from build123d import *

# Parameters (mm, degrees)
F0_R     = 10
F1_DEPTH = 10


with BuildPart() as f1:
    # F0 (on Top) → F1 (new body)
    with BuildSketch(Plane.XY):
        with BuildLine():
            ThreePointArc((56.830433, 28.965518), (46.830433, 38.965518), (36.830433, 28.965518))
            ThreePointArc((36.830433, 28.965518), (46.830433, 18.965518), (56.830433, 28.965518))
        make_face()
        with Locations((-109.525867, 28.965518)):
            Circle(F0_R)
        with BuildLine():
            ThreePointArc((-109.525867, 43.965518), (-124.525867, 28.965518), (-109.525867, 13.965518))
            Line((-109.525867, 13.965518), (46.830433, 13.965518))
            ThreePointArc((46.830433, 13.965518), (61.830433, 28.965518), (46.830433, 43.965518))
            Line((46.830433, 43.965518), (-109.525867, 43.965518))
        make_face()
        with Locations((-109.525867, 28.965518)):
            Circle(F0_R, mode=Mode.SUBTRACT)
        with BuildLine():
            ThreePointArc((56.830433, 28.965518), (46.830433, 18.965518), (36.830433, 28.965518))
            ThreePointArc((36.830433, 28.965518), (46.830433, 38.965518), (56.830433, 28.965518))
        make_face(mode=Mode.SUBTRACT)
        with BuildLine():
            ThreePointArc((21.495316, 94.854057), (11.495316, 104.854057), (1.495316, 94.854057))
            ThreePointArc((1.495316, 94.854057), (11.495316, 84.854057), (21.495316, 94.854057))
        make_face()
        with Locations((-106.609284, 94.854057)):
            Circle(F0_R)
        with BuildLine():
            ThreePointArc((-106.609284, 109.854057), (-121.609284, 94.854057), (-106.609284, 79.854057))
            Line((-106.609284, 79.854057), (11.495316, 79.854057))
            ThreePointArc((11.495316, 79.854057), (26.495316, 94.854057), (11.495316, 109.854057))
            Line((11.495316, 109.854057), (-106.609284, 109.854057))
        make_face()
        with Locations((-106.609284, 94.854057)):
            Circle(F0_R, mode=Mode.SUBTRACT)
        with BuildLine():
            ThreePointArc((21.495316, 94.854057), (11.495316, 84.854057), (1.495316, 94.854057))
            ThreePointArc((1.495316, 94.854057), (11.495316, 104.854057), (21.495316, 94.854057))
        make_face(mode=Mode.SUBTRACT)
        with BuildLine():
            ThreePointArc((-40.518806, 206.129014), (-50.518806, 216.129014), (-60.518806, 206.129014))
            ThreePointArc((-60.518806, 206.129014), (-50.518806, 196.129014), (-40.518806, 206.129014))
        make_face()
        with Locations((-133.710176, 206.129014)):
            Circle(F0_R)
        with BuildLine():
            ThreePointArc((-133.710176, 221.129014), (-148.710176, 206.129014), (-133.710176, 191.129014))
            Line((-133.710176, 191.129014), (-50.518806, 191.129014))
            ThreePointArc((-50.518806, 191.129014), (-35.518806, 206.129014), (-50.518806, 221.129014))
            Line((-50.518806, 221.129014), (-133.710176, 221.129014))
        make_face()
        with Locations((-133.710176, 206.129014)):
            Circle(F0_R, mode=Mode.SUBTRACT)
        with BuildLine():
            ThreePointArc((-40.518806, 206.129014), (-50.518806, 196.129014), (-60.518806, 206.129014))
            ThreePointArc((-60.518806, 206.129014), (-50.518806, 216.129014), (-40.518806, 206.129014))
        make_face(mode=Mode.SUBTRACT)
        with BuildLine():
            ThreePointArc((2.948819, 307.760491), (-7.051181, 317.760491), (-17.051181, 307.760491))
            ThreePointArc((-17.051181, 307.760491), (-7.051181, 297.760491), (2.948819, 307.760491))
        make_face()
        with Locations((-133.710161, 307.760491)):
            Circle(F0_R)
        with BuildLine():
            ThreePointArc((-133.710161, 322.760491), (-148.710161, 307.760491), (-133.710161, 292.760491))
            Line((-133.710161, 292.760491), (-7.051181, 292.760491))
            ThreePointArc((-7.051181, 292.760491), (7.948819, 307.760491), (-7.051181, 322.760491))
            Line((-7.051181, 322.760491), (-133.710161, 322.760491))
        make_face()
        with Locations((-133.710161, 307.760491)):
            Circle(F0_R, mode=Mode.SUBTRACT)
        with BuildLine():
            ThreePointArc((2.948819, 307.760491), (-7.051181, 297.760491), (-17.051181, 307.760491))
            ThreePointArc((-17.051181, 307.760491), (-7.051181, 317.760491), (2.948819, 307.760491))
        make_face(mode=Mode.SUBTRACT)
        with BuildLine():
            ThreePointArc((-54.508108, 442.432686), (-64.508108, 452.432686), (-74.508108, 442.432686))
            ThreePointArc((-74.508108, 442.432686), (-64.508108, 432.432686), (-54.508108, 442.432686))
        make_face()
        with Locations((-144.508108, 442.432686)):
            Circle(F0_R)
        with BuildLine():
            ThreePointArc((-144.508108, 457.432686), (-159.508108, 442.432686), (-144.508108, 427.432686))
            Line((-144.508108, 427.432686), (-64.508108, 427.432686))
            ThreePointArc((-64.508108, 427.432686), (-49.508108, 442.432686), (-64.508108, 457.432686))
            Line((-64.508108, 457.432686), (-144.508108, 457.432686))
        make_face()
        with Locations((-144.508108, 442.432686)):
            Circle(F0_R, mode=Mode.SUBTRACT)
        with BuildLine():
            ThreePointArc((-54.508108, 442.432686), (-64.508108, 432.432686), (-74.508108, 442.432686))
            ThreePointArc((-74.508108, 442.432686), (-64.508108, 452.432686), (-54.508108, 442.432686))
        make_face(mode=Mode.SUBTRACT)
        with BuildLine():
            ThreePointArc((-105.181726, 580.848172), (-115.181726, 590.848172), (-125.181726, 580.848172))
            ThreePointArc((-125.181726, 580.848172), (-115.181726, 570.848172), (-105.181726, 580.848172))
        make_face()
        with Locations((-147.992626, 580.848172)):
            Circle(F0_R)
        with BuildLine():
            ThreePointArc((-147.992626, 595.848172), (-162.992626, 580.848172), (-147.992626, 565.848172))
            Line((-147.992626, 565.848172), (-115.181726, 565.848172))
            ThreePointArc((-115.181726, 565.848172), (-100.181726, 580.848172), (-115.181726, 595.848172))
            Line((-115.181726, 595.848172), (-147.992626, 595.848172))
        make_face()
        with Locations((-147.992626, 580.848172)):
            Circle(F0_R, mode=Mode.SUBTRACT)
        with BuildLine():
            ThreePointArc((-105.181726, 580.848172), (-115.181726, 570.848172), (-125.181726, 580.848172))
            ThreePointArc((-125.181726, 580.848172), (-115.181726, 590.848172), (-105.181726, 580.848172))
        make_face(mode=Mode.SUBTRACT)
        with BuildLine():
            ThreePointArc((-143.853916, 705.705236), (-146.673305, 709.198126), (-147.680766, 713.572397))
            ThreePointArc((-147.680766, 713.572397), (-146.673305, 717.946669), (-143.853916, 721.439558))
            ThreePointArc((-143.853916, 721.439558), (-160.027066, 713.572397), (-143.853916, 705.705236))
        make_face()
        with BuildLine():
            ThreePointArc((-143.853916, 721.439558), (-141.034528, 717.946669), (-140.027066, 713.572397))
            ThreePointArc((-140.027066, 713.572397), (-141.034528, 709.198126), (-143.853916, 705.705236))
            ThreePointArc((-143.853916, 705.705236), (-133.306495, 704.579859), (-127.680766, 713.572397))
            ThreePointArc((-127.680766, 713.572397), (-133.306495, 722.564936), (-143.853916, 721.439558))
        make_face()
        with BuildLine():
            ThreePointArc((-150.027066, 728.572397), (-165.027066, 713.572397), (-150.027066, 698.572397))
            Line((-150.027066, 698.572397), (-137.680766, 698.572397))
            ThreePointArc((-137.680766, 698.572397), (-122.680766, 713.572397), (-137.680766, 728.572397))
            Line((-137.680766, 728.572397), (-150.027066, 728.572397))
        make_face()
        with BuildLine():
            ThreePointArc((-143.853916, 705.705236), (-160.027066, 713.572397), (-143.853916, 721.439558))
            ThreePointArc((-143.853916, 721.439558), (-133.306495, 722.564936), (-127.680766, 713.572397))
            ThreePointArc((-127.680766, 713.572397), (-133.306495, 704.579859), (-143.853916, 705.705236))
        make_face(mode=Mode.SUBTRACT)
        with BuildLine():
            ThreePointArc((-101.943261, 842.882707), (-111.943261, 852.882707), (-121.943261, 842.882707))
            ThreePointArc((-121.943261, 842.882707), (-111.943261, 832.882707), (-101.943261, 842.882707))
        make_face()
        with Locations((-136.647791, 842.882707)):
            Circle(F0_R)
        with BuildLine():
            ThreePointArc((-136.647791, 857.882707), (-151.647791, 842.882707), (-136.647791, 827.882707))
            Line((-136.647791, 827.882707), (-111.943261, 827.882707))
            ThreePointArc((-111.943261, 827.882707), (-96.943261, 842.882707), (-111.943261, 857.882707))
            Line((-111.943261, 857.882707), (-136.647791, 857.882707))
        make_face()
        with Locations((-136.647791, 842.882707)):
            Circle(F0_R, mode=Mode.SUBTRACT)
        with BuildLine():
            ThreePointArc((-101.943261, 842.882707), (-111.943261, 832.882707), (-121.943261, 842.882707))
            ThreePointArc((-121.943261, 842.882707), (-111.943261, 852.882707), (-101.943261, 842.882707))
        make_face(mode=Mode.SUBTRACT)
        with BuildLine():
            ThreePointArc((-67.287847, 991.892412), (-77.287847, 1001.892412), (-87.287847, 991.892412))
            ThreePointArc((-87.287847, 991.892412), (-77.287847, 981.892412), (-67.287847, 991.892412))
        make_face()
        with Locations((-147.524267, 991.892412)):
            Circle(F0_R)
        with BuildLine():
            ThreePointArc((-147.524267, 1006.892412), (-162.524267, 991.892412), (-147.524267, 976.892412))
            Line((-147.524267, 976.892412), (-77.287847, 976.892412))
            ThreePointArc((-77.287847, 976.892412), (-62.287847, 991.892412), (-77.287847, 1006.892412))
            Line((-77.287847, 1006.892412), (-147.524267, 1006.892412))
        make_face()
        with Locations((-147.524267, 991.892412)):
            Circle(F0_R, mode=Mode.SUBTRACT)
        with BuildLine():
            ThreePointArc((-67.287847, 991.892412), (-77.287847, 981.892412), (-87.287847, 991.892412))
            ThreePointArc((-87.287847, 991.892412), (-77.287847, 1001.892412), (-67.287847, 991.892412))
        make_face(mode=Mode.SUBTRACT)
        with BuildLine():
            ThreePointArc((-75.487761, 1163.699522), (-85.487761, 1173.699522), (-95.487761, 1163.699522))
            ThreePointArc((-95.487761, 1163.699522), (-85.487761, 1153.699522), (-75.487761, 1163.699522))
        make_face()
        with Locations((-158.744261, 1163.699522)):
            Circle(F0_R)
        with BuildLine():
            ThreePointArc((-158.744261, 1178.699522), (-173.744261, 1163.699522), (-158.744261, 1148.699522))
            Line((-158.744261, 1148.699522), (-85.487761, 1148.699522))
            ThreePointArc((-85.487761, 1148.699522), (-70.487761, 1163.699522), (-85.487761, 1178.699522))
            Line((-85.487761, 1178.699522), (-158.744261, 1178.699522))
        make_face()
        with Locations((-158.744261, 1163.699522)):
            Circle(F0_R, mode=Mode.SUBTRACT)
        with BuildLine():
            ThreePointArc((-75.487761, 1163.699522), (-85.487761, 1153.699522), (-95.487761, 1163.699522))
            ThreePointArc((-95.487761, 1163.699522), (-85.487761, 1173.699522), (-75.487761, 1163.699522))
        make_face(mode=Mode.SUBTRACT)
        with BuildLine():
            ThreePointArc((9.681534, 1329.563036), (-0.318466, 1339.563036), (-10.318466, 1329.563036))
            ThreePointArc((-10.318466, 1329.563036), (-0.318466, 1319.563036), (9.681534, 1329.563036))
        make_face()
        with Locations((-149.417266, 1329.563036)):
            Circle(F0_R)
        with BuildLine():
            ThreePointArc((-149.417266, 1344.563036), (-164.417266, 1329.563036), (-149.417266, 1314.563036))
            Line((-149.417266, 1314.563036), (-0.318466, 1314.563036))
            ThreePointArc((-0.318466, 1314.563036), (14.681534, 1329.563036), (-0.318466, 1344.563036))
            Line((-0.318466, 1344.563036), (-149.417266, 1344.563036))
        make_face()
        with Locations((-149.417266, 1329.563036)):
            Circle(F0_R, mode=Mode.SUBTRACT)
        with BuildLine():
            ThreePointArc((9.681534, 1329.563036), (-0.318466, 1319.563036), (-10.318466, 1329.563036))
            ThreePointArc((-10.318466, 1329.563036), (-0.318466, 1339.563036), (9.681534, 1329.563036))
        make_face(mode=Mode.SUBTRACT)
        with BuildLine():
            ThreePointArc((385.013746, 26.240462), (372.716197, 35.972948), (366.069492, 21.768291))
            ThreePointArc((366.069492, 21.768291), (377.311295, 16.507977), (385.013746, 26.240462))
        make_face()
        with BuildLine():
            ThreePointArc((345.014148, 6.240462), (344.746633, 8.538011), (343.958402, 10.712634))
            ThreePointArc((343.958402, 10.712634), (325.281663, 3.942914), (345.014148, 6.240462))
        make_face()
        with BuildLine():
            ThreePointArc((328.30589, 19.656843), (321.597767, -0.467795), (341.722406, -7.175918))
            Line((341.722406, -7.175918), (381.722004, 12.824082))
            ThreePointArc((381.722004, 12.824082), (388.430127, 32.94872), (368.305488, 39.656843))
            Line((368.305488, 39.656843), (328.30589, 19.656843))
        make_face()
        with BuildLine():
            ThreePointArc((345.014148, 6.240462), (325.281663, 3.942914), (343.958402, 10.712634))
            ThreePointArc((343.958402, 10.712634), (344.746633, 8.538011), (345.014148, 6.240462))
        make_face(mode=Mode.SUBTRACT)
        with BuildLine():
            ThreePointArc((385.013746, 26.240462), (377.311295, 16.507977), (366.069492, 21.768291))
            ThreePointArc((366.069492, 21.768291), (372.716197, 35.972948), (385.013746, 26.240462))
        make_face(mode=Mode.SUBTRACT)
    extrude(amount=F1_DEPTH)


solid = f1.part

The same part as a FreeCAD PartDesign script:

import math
import FreeCAD as App
import Part
import Sketcher

V = App.Vector
Q = App.Units.Quantity

doc = App.newDocument("Part")
body = doc.addObject("PartDesign::Body", "Body")
body.AllowCompound = True

# Sketch on XY plane
sketch1 = doc.addObject("Sketcher::SketchObject", "Sketch")
body.addObject(sketch1)
sketch1.AttachmentSupport = (doc.XY_Plane, [""])
sketch1.MapMode = "FlatFace"
sketch1.addGeometry([
    Part.ArcOfCircle(Part.Circle(V(-109.525867, 28.965518, 0), V(0, 0, 1), 15), math.radians(90), math.radians(270)),  # 0
    Part.LineSegment(V(-109.525867, 13.965518, 0), V(46.830433, 13.965518, 0)),  # 1
    Part.ArcOfCircle(Part.Circle(V(46.830433, 28.965518, 0), V(0, 0, 1), 15), math.radians(-90), math.radians(90)),  # 2
    Part.LineSegment(V(46.830433, 43.965518, 0), V(-109.525867, 43.965518, 0)),  # 3
    Part.Circle(V(-109.525867, 28.965518, 0), V(0, 0, 1), 10),  # 4
    Part.Circle(V(46.830433, 28.965518, 0), V(0, 0, 1), 10),  # 5
    Part.ArcOfCircle(Part.Circle(V(-106.609284, 94.854057, 0), V(0, 0, 1), 15), math.radians(90), math.radians(270)),  # 6
    Part.LineSegment(V(-106.609284, 79.854057, 0), V(11.495316, 79.854057, 0)),  # 7
    Part.ArcOfCircle(Part.Circle(V(11.495316, 94.854057, 0), V(0, 0, 1), 15), math.radians(-90), math.radians(90)),  # 8
    Part.LineSegment(V(11.495316, 109.854057, 0), V(-106.609284, 109.854057, 0)),  # 9
    Part.Circle(V(-106.609284, 94.854057, 0), V(0, 0, 1), 10),  # 10
    Part.Circle(V(11.495316, 94.854057, 0), V(0, 0, 1), 10),  # 11
    Part.ArcOfCircle(Part.Circle(V(-133.710176, 206.129014, 0), V(0, 0, 1), 15), math.radians(90), math.radians(270)),  # 12
    Part.LineSegment(V(-133.710176, 191.129014, 0), V(-50.518806, 191.129014, 0)),  # 13
    Part.ArcOfCircle(Part.Circle(V(-50.518806, 206.129014, 0), V(0, 0, 1), 15), math.radians(-90), math.radians(90)),  # 14
    Part.LineSegment(V(-50.518806, 221.129014, 0), V(-133.710176, 221.129014, 0)),  # 15
    Part.Circle(V(-133.710176, 206.129014, 0), V(0, 0, 1), 10),  # 16
    Part.Circle(V(-50.518806, 206.129014, 0), V(0, 0, 1), 10),  # 17
    Part.ArcOfCircle(Part.Circle(V(-133.710161, 307.760491, 0), V(0, 0, 1), 15), math.radians(90), math.radians(270)),  # 18
    Part.LineSegment(V(-133.710161, 292.760491, 0), V(-7.051181, 292.760491, 0)),  # 19
    Part.ArcOfCircle(Part.Circle(V(-7.051181, 307.760491, 0), V(0, 0, 1), 15), math.radians(-90), math.radians(90)),  # 20
    Part.LineSegment(V(-7.051181, 322.760491, 0), V(-133.710161, 322.760491, 0)),  # 21
    Part.Circle(V(-133.710161, 307.760491, 0), V(0, 0, 1), 10),  # 22
    Part.Circle(V(-7.051181, 307.760491, 0), V(0, 0, 1), 10),  # 23
    Part.ArcOfCircle(Part.Circle(V(-144.508108, 442.432686, 0), V(0, 0, 1), 15), math.radians(90), math.radians(270)),  # 24
    Part.LineSegment(V(-144.508108, 427.432686, 0), V(-64.508108, 427.432686, 0)),  # 25
    Part.ArcOfCircle(Part.Circle(V(-64.508108, 442.432686, 0), V(0, 0, 1), 15), math.radians(-90), math.radians(90)),  # 26
    Part.LineSegment(V(-64.508108, 457.432686, 0), V(-144.508108, 457.432686, 0)),  # 27
    Part.Circle(V(-144.508108, 442.432686, 0), V(0, 0, 1), 10),  # 28
    Part.Circle(V(-64.508108, 442.432686, 0), V(0, 0, 1), 10),  # 29
    Part.ArcOfCircle(Part.Circle(V(-147.992626, 580.848172, 0), V(0, 0, 1), 15), math.radians(90), math.radians(270)),  # 30
    Part.LineSegment(V(-147.992626, 565.848172, 0), V(-115.181726, 565.848172, 0)),  # 31
    Part.ArcOfCircle(Part.Circle(V(-115.181726, 580.848172, 0), V(0, 0, 1), 15), math.radians(-90), math.radians(90)),  # 32
    Part.LineSegment(V(-115.181726, 595.848172, 0), V(-147.992626, 595.848172, 0)),  # 33
    Part.Circle(V(-147.992626, 580.848172, 0), V(0, 0, 1), 10),  # 34
    Part.Circle(V(-115.181726, 580.848172, 0), V(0, 0, 1), 10),  # 35
    Part.ArcOfCircle(Part.Circle(V(-150.027066, 713.572397, 0), V(0, 0, 1), 15), math.radians(90), math.radians(270)),  # 36
    Part.LineSegment(V(-150.027066, 698.572397, 0), V(-137.680766, 698.572397, 0)),  # 37
    Part.ArcOfCircle(Part.Circle(V(-137.680766, 713.572397, 0), V(0, 0, 1), 15), math.radians(-90), math.radians(90)),  # 38
    Part.LineSegment(V(-137.680766, 728.572397, 0), V(-150.027066, 728.572397, 0)),  # 39
    Part.ArcOfCircle(Part.Circle(V(-137.680767, 713.572398, 0), V(0, 0, 1), 10.000001), math.radians(-128.120318), math.radians(-0.000007)),  # 40
    Part.ArcOfCircle(Part.Circle(V(-150.027066, 713.572397, 0), V(0, 0, 1), 10), math.radians(51.879676), math.radians(308.120324)),  # 41
    Part.ArcOfCircle(Part.Circle(V(-137.680766, 713.572397, 0), V(0, 0, 1), 10), math.radians(-0.000002), math.radians(128.120326)),  # 42
    Part.ArcOfCircle(Part.Circle(V(-136.647791, 842.882707, 0), V(0, 0, 1), 15), math.radians(90), math.radians(270)),  # 43
    Part.LineSegment(V(-136.647791, 827.882707, 0), V(-111.943261, 827.882707, 0)),  # 44
    Part.ArcOfCircle(Part.Circle(V(-111.943261, 842.882707, 0), V(0, 0, 1), 15), math.radians(-90), math.radians(90)),  # 45
    Part.LineSegment(V(-111.943261, 857.882707, 0), V(-136.647791, 857.882707, 0)),  # 46
    Part.Circle(V(-136.647791, 842.882707, 0), V(0, 0, 1), 10),  # 47
    Part.Circle(V(-111.943261, 842.882707, 0), V(0, 0, 1), 10),  # 48
    Part.ArcOfCircle(Part.Circle(V(-147.524267, 991.892412, 0), V(0, 0, 1), 15), math.radians(90), math.radians(270)),  # 49
    Part.LineSegment(V(-147.524267, 976.892412, 0), V(-77.287847, 976.892412, 0)),  # 50
    Part.ArcOfCircle(Part.Circle(V(-77.287847, 991.892412, 0), V(0, 0, 1), 15), math.radians(-90), math.radians(90)),  # 51
    Part.LineSegment(V(-77.287847, 1006.892412, 0), V(-147.524267, 1006.892412, 0)),  # 52
    Part.Circle(V(-147.524267, 991.892412, 0), V(0, 0, 1), 10),  # 53
    Part.Circle(V(-77.287847, 991.892412, 0), V(0, 0, 1), 10),  # 54
    Part.ArcOfCircle(Part.Circle(V(-158.744261, 1163.699522, 0), V(0, 0, 1), 15), math.radians(90), math.radians(270)),  # 55
    Part.LineSegment(V(-158.744261, 1148.699522, 0), V(-85.487761, 1148.699522, 0)),  # 56
    Part.ArcOfCircle(Part.Circle(V(-85.487761, 1163.699522, 0), V(0, 0, 1), 15), math.radians(-90), math.radians(90)),  # 57
    Part.LineSegment(V(-85.487761, 1178.699522, 0), V(-158.744261, 1178.699522, 0)),  # 58
    Part.Circle(V(-158.744261, 1163.699522, 0), V(0, 0, 1), 10),  # 59
    Part.Circle(V(-85.487761, 1163.699522, 0), V(0, 0, 1), 10),  # 60
    Part.ArcOfCircle(Part.Circle(V(-149.417266, 1329.563036, 0), V(0, 0, 1), 15), math.radians(90), math.radians(270)),  # 61
    Part.LineSegment(V(-149.417266, 1314.563036, 0), V(-0.318466, 1314.563036, 0)),  # 62
    Part.ArcOfCircle(Part.Circle(V(-0.318466, 1329.563036, 0), V(0, 0, 1), 15), math.radians(-90), math.radians(90)),  # 63
    Part.LineSegment(V(-0.318466, 1344.563036, 0), V(-149.417266, 1344.563036, 0)),  # 64
    Part.Circle(V(-149.417266, 1329.563036, 0), V(0, 0, 1), 10),  # 65
    Part.Circle(V(-0.318466, 1329.563036, 0), V(0, 0, 1), 10),  # 66
    Part.ArcOfCircle(Part.Circle(V(335.014148, 6.240462, 0), V(0, 0, 1), 15), math.radians(116.565282), math.radians(296.565283)),  # 67
    Part.LineSegment(V(341.722406, -7.175918, 0), V(381.722004, 12.824082, 0)),  # 68
    Part.ArcOfCircle(Part.Circle(V(375.013746, 26.240463, 0), V(0, 0, 1), 15), math.radians(-63.434718), math.radians(116.565283)),  # 69
    Part.LineSegment(V(368.305488, 39.656843, 0), V(328.30589, 19.656843, 0)),  # 70
    Part.ArcOfCircle(Part.Circle(V(335.014138, 6.24046, 0), V(0, 0, 1), 10.00001), math.radians(0.000012), math.radians(26.565267)),  # 71
    Part.ArcOfCircle(Part.Circle(V(335.014148, 6.240462, 0), V(0, 0, 1), 10), math.radians(26.565281), math.radians(359.999998)),  # 72
    Part.ArcOfCircle(Part.Circle(V(375.013746, 26.240463, 0), V(0, 0, 1), 10), math.radians(-0.000004), math.radians(206.565281)),  # 73
    Part.ArcOfCircle(Part.Circle(V(375.013746, 26.240462, 0), V(0, 0, 1), 10), math.radians(-153.434723), math.radians(-0.000001)),  # 74
], False)
sketch1.addConstraint([
    Sketcher.Constraint("Coincident", 0, 2, 1, 1),
    Sketcher.Constraint("Coincident", 1, 2, 2, 1),
    Sketcher.Constraint("Coincident", 2, 2, 3, 1),
    Sketcher.Constraint("Coincident", 3, 2, 0, 1),
    Sketcher.Constraint("Coincident", 6, 2, 7, 1),
    Sketcher.Constraint("Coincident", 7, 2, 8, 1),
    Sketcher.Constraint("Coincident", 8, 2, 9, 1),
    Sketcher.Constraint("Coincident", 9, 2, 6, 1),
    Sketcher.Constraint("Coincident", 12, 2, 13, 1),
    Sketcher.Constraint("Coincident", 13, 2, 14, 1),
    Sketcher.Constraint("Coincident", 14, 2, 15, 1),
    Sketcher.Constraint("Coincident", 15, 2, 12, 1),
    Sketcher.Constraint("Coincident", 18, 2, 19, 1),
    Sketcher.Constraint("Coincident", 19, 2, 20, 1),
    Sketcher.Constraint("Coincident", 20, 2, 21, 1),
    Sketcher.Constraint("Coincident", 21, 2, 18, 1),
    Sketcher.Constraint("Coincident", 24, 2, 25, 1),
    Sketcher.Constraint("Coincident", 25, 2, 26, 1),
    Sketcher.Constraint("Coincident", 26, 2, 27, 1),
    Sketcher.Constraint("Coincident", 27, 2, 24, 1),
    Sketcher.Constraint("Coincident", 30, 2, 31, 1),
    Sketcher.Constraint("Coincident", 31, 2, 32, 1),
    Sketcher.Constraint("Coincident", 32, 2, 33, 1),
    Sketcher.Constraint("Coincident", 33, 2, 30, 1),
    Sketcher.Constraint("Coincident", 36, 2, 37, 1),
    Sketcher.Constraint("Coincident", 37, 2, 38, 1),
    Sketcher.Constraint("Coincident", 38, 2, 39, 1),
    Sketcher.Constraint("Coincident", 39, 2, 36, 1),
    Sketcher.Constraint("Coincident", 40, 1, 41, 2),
    Sketcher.Constraint("Coincident", 41, 1, 42, 2),
    Sketcher.Constraint("Coincident", 42, 1, 40, 2),
    Sketcher.Constraint("Coincident", 43, 2, 44, 1),
    Sketcher.Constraint("Coincident", 44, 2, 45, 1),
    Sketcher.Constraint("Coincident", 45, 2, 46, 1),
    Sketcher.Constraint("Coincident", 46, 2, 43, 1),
    Sketcher.Constraint("Coincident", 49, 2, 50, 1),
    Sketcher.Constraint("Coincident", 50, 2, 51, 1),
    Sketcher.Constraint("Coincident", 51, 2, 52, 1),
    Sketcher.Constraint("Coincident", 52, 2, 49, 1),
    Sketcher.Constraint("Coincident", 55, 2, 56, 1),
    Sketcher.Constraint("Coincident", 56, 2, 57, 1),
    Sketcher.Constraint("Coincident", 57, 2, 58, 1),
    Sketcher.Constraint("Coincident", 58, 2, 55, 1),
    Sketcher.Constraint("Coincident", 61, 2, 62, 1),
    Sketcher.Constraint("Coincident", 62, 2, 63, 1),
    Sketcher.Constraint("Coincident", 63, 2, 64, 1),
    Sketcher.Constraint("Coincident", 64, 2, 61, 1),
    Sketcher.Constraint("Coincident", 67, 2, 68, 1),
    Sketcher.Constraint("Coincident", 68, 2, 69, 1),
    Sketcher.Constraint("Coincident", 69, 2, 70, 1),
    Sketcher.Constraint("Coincident", 70, 2, 67, 1),
    Sketcher.Constraint("Coincident", 71, 1, 72, 2),
    Sketcher.Constraint("Coincident", 72, 1, 71, 2),
    Sketcher.Constraint("Coincident", 73, 1, 74, 2),
    Sketcher.Constraint("Coincident", 74, 1, 73, 2),
    Sketcher.Constraint("Horizontal", 1),
    Sketcher.Constraint("Horizontal", 3),
    Sketcher.Constraint("Horizontal", 7),
    Sketcher.Constraint("Horizontal", 9),
    Sketcher.Constraint("Horizontal", 13),
    Sketcher.Constraint("Horizontal", 15),
    Sketcher.Constraint("Horizontal", 19),
    Sketcher.Constraint("Horizontal", 21),
    Sketcher.Constraint("Horizontal", 25),
    Sketcher.Constraint("Horizontal", 27),
    Sketcher.Constraint("Horizontal", 31),
    Sketcher.Constraint("Horizontal", 33),
    Sketcher.Constraint("Horizontal", 37),
    Sketcher.Constraint("Horizontal", 39),
    Sketcher.Constraint("Horizontal", 44),
    Sketcher.Constraint("Horizontal", 46),
    Sketcher.Constraint("Horizontal", 50),
    Sketcher.Constraint("Horizontal", 52),
    Sketcher.Constraint("Horizontal", 56),
    Sketcher.Constraint("Horizontal", 58),
    Sketcher.Constraint("Horizontal", 62),
    Sketcher.Constraint("Horizontal", 64),
    Sketcher.Constraint("Coincident", 4, 3, 0, 3),
    Sketcher.Constraint("Coincident", 5, 3, 2, 3),
    Sketcher.Constraint("Coincident", 10, 3, 6, 3),
    Sketcher.Constraint("Coincident", 11, 3, 8, 3),
    Sketcher.Constraint("Coincident", 16, 3, 12, 3),
    Sketcher.Constraint("Coincident", 17, 3, 14, 3),
    Sketcher.Constraint("Coincident", 22, 3, 18, 3),
    Sketcher.Constraint("Coincident", 23, 3, 20, 3),
    Sketcher.Constraint("Coincident", 28, 3, 24, 3),
    Sketcher.Constraint("Coincident", 29, 3, 26, 3),
    Sketcher.Constraint("Coincident", 34, 3, 30, 3),
    Sketcher.Constraint("Coincident", 35, 3, 32, 3),
    Sketcher.Constraint("Coincident", 40, 3, 38, 3),
    Sketcher.Constraint("Coincident", 41, 3, 36, 3),
    Sketcher.Constraint("Coincident", 42, 3, 38, 3),
    Sketcher.Constraint("Coincident", 47, 3, 43, 3),
    Sketcher.Constraint("Coincident", 48, 3, 45, 3),
    Sketcher.Constraint("Coincident", 53, 3, 49, 3),
    Sketcher.Constraint("Coincident", 54, 3, 51, 3),
    Sketcher.Constraint("Coincident", 59, 3, 55, 3),
    Sketcher.Constraint("Coincident", 60, 3, 57, 3),
    Sketcher.Constraint("Coincident", 65, 3, 61, 3),
    Sketcher.Constraint("Coincident", 66, 3, 63, 3),
    Sketcher.Constraint("Coincident", 71, 3, 67, 3),
    Sketcher.Constraint("Coincident", 73, 3, 69, 3),
    Sketcher.Constraint("Diameter", 4, Q("20 mm")),
    Sketcher.Constraint("Diameter", 5, Q("20 mm")),
    Sketcher.Constraint("Diameter", 10, Q("20 mm")),
    Sketcher.Constraint("Diameter", 11, Q("20 mm")),
    Sketcher.Constraint("Diameter", 16, Q("20 mm")),
    Sketcher.Constraint("Diameter", 17, Q("20 mm")),
    Sketcher.Constraint("Diameter", 22, Q("20 mm")),
    Sketcher.Constraint("Diameter", 23, Q("20 mm")),
    Sketcher.Constraint("Diameter", 28, Q("20 mm")),
    Sketcher.Constraint("Diameter", 29, Q("20 mm")),
    Sketcher.Constraint("Diameter", 34, Q("20 mm")),
    Sketcher.Constraint("Diameter", 35, Q("20 mm")),
    Sketcher.Constraint("Diameter", 47, Q("20 mm")),
    Sketcher.Constraint("Diameter", 48, Q("20 mm")),
    Sketcher.Constraint("Diameter", 53, Q("20 mm")),
    Sketcher.Constraint("Diameter", 54, Q("20 mm")),
    Sketcher.Constraint("Diameter", 59, Q("20 mm")),
    Sketcher.Constraint("Diameter", 60, Q("20 mm")),
    Sketcher.Constraint("Diameter", 65, Q("20 mm")),
    Sketcher.Constraint("Diameter", 66, Q("20 mm")),
    Sketcher.Constraint("Radius", 0, Q("15 mm")),
    Sketcher.Constraint("Radius", 6, Q("15 mm")),
    Sketcher.Constraint("Radius", 12, Q("15 mm")),
    Sketcher.Constraint("Radius", 18, Q("15 mm")),
    Sketcher.Constraint("Radius", 24, Q("15 mm")),
    Sketcher.Constraint("Radius", 30, Q("15 mm")),
    Sketcher.Constraint("Radius", 36, Q("15 mm")),
    Sketcher.Constraint("Radius", 40, Q("10.000001 mm")),
    Sketcher.Constraint("Radius", 41, Q("10 mm")),
    Sketcher.Constraint("Radius", 43, Q("15 mm")),
    Sketcher.Constraint("Radius", 49, Q("15 mm")),
    Sketcher.Constraint("Radius", 55, Q("15 mm")),
    Sketcher.Constraint("Radius", 61, Q("15 mm")),
    Sketcher.Constraint("Radius", 67, Q("15 mm")),
    Sketcher.Constraint("Radius", 69, Q("15 mm")),
    Sketcher.Constraint("Radius", 72, Q("10 mm")),
    Sketcher.Constraint("Radius", 73, Q("10 mm")),
    Sketcher.Constraint("Radius", 74, Q("10 mm")),
    Sketcher.Constraint("DistanceX", 25, 1, 25, 2, Q("80 mm")),
    Sketcher.Constraint("DistanceX", 27, 2, 27, 1, Q("80 mm")),
    Sketcher.Constraint("Radius", 71, Q("10.00001 mm")),
    Sketcher.Constraint("Distance", 68, Q("44.721 mm")),
    Sketcher.Constraint("Distance", 70, Q("44.721 mm")),
    Sketcher.Constraint("DistanceX", 1, 1, 1, 2, Q("156.3563 mm")),
    Sketcher.Constraint("DistanceX", 3, 2, 3, 1, Q("156.3563 mm")),
    Sketcher.Constraint("DistanceX", 7, 1, 7, 2, Q("118.1046 mm")),
    Sketcher.Constraint("DistanceX", 9, 2, 9, 1, Q("118.1046 mm")),
    Sketcher.Constraint("DistanceX", 31, 1, 31, 2, Q("32.8109 mm")),
    Sketcher.Constraint("DistanceX", 33, 2, 33, 1, Q("32.8109 mm")),
    Sketcher.Constraint("DistanceX", 37, 1, 37, 2, Q("12.3463 mm")),
    Sketcher.Constraint("DistanceX", 39, 2, 39, 1, Q("12.3463 mm")),
    Sketcher.Constraint("DistanceX", 56, 1, 56, 2, Q("73.2565 mm")),
    Sketcher.Constraint("DistanceX", 58, 2, 58, 1, Q("73.2565 mm")),
    Sketcher.Constraint("DistanceX", 62, 1, 62, 2, Q("149.0988 mm")),
    Sketcher.Constraint("DistanceX", 64, 2, 64, 1, Q("149.0988 mm")),
    Sketcher.Constraint("DistanceX", 13, 1, 13, 2, Q("83.19137 mm")),
    Sketcher.Constraint("DistanceX", 15, 2, 15, 1, Q("83.19137 mm")),
    Sketcher.Constraint("DistanceX", 19, 1, 19, 2, Q("126.65898 mm")),
    Sketcher.Constraint("DistanceX", 21, 2, 21, 1, Q("126.65898 mm")),
    Sketcher.Constraint("DistanceX", 44, 1, 44, 2, Q("24.70453 mm")),
    Sketcher.Constraint("DistanceX", 46, 2, 46, 1, Q("24.70453 mm")),
    Sketcher.Constraint("DistanceX", 50, 1, 50, 2, Q("70.23642 mm")),
    Sketcher.Constraint("DistanceX", 52, 2, 52, 1, Q("70.23642 mm")),
    Sketcher.Constraint("DistanceY", -1, 1, 40, 3, Q("713.572398 mm")),
    Sketcher.Constraint("DistanceX", 18, 3, -1, 1, Q("133.710161 mm")),
    Sketcher.Constraint("DistanceY", -1, 1, 18, 3, Q("307.760491 mm")),
    Sketcher.Constraint("DistanceX", 20, 3, -1, 1, Q("7.051181 mm")),
    Sketcher.Constraint("DistanceX", 24, 3, -1, 1, Q("144.508108 mm")),
    Sketcher.Constraint("DistanceY", -1, 1, 30, 3, Q("580.848172 mm")),
    Sketcher.Constraint("DistanceX", 43, 3, -1, 1, Q("136.647791 mm")),
    Sketcher.Constraint("DistanceX", 45, 3, -1, 1, Q("111.943261 mm")),
    Sketcher.Constraint("DistanceY", -1, 1, 49, 3, Q("991.892412 mm")),
    Sketcher.Constraint("DistanceX", 55, 3, -1, 1, Q("158.744261 mm")),
    Sketcher.Constraint("DistanceY", -1, 1, 55, 3, Q("1163.699522 mm")),
    Sketcher.Constraint("DistanceX", 57, 3, -1, 1, Q("85.487761 mm")),
    Sketcher.Constraint("DistanceX", -1, 1, 71, 3, Q("335.014138 mm")),
    Sketcher.Constraint("DistanceY", -1, 1, 71, 3, Q("6.24046 mm")),
    Sketcher.Constraint("DistanceY", -1, 1, 2, 2, Q("43.965518 mm")),
    Sketcher.Constraint("DistanceX", 18, 2, -1, 1, Q("133.710161 mm")),
    Sketcher.Constraint("DistanceX", 20, 2, -1, 1, Q("7.051181 mm")),
    Sketcher.Constraint("DistanceX", 24, 2, -1, 1, Q("144.508108 mm")),
    Sketcher.Constraint("DistanceX", 27, 2, -1, 1, Q("144.508108 mm")),
    Sketcher.Constraint("DistanceY", -1, 1, 41, 1, Q("721.439558 mm")),
    Sketcher.Constraint("DistanceX", 43, 2, -1, 1, Q("136.647791 mm")),
    Sketcher.Constraint("DistanceX", 45, 2, -1, 1, Q("111.943261 mm")),
    Sketcher.Constraint("DistanceX", 55, 2, -1, 1, Q("158.744261 mm")),
    Sketcher.Constraint("DistanceX", 57, 2, -1, 1, Q("85.487761 mm")),
    Sketcher.Constraint("DistanceY", 67, 2, -1, 1, Q("7.175918 mm")),
    Sketcher.Constraint("DistanceX", -1, 1, 70, 2, Q("328.30589 mm")),
    Sketcher.Constraint("DistanceY", -1, 1, 74, 1, Q("21.768291 mm")),
    Sketcher.Constraint("DistanceX", 0, 3, -1, 1, Q("109.525867 mm")),
    Sketcher.Constraint("DistanceX", -1, 1, 2, 3, Q("46.830433 mm")),
    Sketcher.Constraint("DistanceX", 6, 3, -1, 1, Q("106.609284 mm")),
    Sketcher.Constraint("DistanceY", -1, 1, 6, 3, Q("94.854057 mm")),
    Sketcher.Constraint("DistanceX", -1, 1, 8, 3, Q("11.495316 mm")),
    Sketcher.Constraint("DistanceX", 12, 3, -1, 1, Q("133.710176 mm")),
    Sketcher.Constraint("DistanceY", -1, 1, 12, 3, Q("206.129014 mm")),
    Sketcher.Constraint("DistanceX", 14, 3, -1, 1, Q("50.518806 mm")),
    Sketcher.Constraint("DistanceY", -1, 1, 24, 3, Q("442.432686 mm")),
    Sketcher.Constraint("DistanceX", 26, 3, -1, 1, Q("64.508108 mm")),
    Sketcher.Constraint("DistanceX", 30, 3, -1, 1, Q("147.992626 mm")),
    Sketcher.Constraint("DistanceX", 32, 3, -1, 1, Q("115.181726 mm")),
    Sketcher.Constraint("DistanceX", 36, 3, -1, 1, Q("150.027066 mm")),
    Sketcher.Constraint("DistanceY", -1, 1, 43, 3, Q("842.882707 mm")),
    Sketcher.Constraint("DistanceX", 49, 3, -1, 1, Q("147.524267 mm")),
    Sketcher.Constraint("DistanceX", 51, 3, -1, 1, Q("77.287847 mm")),
    Sketcher.Constraint("DistanceX", 61, 3, -1, 1, Q("149.417266 mm")),
    Sketcher.Constraint("DistanceY", -1, 1, 61, 3, Q("1329.563036 mm")),
    Sketcher.Constraint("DistanceX", 63, 3, -1, 1, Q("0.318466 mm")),
    Sketcher.Constraint("DistanceX", -1, 1, 69, 3, Q("375.013746 mm")),
    Sketcher.Constraint("DistanceY", -1, 1, 69, 3, Q("26.240463 mm")),
    Sketcher.Constraint("DistanceX", 0, 2, -1, 1, Q("109.525867 mm")),
    Sketcher.Constraint("DistanceX", -1, 1, 2, 2, Q("46.830433 mm")),
    Sketcher.Constraint("DistanceX", 6, 2, -1, 1, Q("106.609284 mm")),
    Sketcher.Constraint("DistanceX", -1, 1, 8, 2, Q("11.495316 mm")),
    Sketcher.Constraint("DistanceX", 12, 2, -1, 1, Q("133.710176 mm")),
    Sketcher.Constraint("DistanceX", 14, 2, -1, 1, Q("50.518806 mm")),
    Sketcher.Constraint("DistanceX", 30, 2, -1, 1, Q("147.992626 mm")),
    Sketcher.Constraint("DistanceX", 32, 2, -1, 1, Q("115.181726 mm")),
    Sketcher.Constraint("DistanceX", 36, 2, -1, 1, Q("150.027066 mm")),
    Sketcher.Constraint("DistanceX", 38, 2, -1, 1, Q("137.680766 mm")),
    Sketcher.Constraint("DistanceY", -1, 1, 42, 1, Q("713.572397 mm")),
    Sketcher.Constraint("DistanceX", 49, 2, -1, 1, Q("147.524267 mm")),
    Sketcher.Constraint("DistanceX", 51, 2, -1, 1, Q("77.287847 mm")),
    Sketcher.Constraint("DistanceX", 61, 2, -1, 1, Q("149.417266 mm")),
    Sketcher.Constraint("DistanceX", 63, 2, -1, 1, Q("0.318466 mm")),
    Sketcher.Constraint("DistanceY", -1, 1, 71, 1, Q("6.240462 mm")),
    Sketcher.Constraint("DistanceX", -1, 1, 72, 1, Q("343.958402 mm")),
    Sketcher.Constraint("DistanceY", -1, 1, 73, 1, Q("26.240462 mm")),
])
pad1 = doc.addObject("PartDesign::Pad", "Pad")
body.addObject(pad1)
pad1.Profile = sketch1
pad1.Length = 10

doc.recompute()
